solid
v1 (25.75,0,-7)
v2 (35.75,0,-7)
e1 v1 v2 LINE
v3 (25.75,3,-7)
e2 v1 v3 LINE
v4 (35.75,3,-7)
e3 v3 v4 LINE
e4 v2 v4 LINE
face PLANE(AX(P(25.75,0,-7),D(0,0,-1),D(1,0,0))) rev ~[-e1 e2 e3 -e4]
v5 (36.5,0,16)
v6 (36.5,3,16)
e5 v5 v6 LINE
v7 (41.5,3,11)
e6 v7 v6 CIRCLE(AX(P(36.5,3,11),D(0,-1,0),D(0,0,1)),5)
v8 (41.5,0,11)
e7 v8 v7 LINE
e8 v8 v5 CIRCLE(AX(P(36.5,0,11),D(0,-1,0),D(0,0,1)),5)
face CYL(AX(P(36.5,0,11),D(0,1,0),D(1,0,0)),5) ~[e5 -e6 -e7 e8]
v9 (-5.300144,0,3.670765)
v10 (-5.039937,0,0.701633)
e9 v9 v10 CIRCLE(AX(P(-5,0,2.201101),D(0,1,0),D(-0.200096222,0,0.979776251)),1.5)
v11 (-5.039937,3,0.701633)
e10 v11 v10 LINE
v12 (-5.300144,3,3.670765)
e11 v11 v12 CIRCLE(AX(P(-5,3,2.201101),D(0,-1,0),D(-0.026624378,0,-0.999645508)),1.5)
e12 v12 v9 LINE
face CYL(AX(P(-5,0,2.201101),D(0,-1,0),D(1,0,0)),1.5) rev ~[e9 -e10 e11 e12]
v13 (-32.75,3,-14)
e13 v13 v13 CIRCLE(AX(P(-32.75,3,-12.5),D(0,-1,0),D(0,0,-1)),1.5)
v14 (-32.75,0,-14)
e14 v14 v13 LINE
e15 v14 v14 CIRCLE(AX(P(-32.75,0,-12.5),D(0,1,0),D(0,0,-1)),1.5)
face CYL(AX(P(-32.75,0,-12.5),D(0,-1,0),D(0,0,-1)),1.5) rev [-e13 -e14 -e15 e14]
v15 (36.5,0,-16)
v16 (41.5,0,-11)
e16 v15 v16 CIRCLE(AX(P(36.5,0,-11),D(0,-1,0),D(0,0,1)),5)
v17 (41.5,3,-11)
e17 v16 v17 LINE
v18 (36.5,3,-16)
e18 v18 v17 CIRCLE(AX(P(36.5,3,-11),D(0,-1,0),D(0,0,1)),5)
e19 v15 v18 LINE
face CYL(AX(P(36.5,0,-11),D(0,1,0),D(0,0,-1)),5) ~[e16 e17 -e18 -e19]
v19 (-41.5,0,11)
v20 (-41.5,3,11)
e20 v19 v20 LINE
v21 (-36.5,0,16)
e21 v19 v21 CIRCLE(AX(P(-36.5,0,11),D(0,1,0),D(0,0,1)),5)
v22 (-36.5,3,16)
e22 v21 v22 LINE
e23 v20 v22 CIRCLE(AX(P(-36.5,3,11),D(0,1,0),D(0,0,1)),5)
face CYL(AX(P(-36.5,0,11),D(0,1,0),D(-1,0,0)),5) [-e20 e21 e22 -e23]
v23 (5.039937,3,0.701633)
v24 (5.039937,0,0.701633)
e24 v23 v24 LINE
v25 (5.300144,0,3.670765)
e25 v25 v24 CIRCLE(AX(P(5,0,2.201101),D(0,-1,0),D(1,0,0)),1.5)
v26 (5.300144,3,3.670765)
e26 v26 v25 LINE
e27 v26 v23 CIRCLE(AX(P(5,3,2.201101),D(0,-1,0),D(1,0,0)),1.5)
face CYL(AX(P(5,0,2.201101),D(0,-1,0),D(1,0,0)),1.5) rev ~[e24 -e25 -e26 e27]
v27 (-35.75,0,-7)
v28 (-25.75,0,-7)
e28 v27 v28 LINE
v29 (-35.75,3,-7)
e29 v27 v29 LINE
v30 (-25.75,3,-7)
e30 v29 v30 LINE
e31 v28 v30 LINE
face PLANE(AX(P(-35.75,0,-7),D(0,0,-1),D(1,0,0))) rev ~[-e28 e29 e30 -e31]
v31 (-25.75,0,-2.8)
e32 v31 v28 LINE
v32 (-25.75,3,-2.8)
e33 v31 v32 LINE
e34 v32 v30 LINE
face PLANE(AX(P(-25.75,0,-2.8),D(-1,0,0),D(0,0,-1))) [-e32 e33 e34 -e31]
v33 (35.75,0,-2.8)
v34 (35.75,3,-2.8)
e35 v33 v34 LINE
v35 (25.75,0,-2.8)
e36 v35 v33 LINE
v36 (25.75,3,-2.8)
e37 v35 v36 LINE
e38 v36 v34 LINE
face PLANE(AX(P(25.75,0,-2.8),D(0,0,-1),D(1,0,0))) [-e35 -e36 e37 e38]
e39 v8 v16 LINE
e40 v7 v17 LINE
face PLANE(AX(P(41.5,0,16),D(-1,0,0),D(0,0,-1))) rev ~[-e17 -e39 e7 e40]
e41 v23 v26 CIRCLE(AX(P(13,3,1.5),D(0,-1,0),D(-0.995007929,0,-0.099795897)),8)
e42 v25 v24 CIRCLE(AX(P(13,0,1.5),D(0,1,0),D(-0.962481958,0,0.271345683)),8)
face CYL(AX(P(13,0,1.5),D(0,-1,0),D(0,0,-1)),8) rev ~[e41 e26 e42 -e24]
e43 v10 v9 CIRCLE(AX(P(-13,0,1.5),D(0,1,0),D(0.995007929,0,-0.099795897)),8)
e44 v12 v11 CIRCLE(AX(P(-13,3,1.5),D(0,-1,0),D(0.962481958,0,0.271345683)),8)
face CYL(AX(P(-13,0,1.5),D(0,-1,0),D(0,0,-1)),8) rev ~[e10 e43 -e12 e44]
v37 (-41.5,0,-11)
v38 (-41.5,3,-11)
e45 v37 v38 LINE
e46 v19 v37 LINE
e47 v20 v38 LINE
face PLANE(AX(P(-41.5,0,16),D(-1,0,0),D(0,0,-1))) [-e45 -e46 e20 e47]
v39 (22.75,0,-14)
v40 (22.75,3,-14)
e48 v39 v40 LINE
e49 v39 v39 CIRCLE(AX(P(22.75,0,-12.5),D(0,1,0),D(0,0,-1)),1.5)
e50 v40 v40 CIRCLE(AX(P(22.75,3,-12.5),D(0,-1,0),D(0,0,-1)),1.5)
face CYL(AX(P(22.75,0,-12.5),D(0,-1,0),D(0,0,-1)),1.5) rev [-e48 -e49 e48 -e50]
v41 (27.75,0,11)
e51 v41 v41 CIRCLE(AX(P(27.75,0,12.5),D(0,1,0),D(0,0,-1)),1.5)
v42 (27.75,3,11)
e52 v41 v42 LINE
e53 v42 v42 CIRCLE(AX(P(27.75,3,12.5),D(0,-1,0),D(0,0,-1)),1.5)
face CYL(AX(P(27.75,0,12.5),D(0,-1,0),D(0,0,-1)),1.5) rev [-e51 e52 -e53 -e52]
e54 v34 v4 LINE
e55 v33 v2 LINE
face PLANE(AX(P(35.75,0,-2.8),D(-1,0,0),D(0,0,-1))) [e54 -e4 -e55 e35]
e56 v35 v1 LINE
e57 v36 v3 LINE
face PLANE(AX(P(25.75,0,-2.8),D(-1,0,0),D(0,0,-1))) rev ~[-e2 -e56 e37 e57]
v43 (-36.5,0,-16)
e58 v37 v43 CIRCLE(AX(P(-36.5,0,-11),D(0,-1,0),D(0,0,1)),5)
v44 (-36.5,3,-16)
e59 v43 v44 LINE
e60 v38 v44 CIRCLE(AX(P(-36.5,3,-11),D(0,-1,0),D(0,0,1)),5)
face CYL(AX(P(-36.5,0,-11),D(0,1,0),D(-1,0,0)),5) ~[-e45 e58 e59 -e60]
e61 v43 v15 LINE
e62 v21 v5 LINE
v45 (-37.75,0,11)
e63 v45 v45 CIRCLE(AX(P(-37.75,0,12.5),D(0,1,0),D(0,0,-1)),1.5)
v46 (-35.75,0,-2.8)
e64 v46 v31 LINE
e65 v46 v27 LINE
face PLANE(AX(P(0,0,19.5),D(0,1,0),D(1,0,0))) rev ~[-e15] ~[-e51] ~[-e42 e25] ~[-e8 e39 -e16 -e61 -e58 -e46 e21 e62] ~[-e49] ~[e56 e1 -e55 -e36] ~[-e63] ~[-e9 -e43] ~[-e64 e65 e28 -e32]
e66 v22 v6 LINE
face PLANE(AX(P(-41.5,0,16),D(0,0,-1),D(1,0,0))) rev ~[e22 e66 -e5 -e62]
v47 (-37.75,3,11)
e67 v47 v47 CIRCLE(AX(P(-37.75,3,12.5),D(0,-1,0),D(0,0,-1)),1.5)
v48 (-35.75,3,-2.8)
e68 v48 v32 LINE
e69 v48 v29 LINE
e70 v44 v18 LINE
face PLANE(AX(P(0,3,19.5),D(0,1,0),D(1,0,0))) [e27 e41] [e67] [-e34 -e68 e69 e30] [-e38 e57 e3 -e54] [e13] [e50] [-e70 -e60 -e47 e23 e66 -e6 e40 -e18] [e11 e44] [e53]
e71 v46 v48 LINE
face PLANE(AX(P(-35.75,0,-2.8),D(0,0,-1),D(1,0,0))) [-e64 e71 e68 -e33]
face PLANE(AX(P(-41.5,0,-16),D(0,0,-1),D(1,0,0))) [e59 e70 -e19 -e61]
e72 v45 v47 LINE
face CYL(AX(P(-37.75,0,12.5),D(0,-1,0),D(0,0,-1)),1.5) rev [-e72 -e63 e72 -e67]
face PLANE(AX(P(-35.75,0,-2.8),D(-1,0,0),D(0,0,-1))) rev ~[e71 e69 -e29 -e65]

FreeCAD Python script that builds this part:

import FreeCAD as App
import Part
import Sketcher


def edges_at(feature, points):
    """Names of the edges that pass closest to the given points."""
    edges = feature.Shape.Edges
    near = lambda p: min(range(len(edges)), key=lambda i: edges[i].distToShape(Part.Vertex(*p))[0])
    return sorted({f"Edge{near(p) + 1}" for p in points})


def add_polygon(sketch, points):
    """Adds a closed chain of lines whose ends are joined by coincident constraints."""
    first, n = sketch.GeometryCount, len(points)
    for a, b in zip(points, points[1:] + points[:1]):
        sketch.addGeometry(Part.LineSegment(App.Vector(*a, 0), App.Vector(*b, 0)), False)
    for i in range(n):
        sketch.addConstraint(Sketcher.Constraint("Coincident", first + i, 2, first + (i + 1) % n, 1))

doc = App.newDocument("Part")
body = doc.addObject("PartDesign::Body", "Body")

# Sketch on XZ plane
sketch1 = body.newObject("Sketcher::SketchObject", "Sketch")
sketch1.AttachmentSupport = (doc.getObject("XZ_Plane"), [""])
sketch1.MapMode = "FlatFace"
add_polygon(sketch1, [(-48, -18), (-48, 18), (48, 18), (48, -18)])  # lines 0-3
sketch1.addConstraint(Sketcher.Constraint("Vertical", 0))
sketch1.addConstraint(Sketcher.Constraint("Horizontal", 1))
sketch1.addConstraint(Sketcher.Constraint("Vertical", 2))
sketch1.addConstraint(Sketcher.Constraint("Horizontal", 3))
sketch1.addConstraint(Sketcher.Constraint("Symmetric", 0, 2, 2, 2, -1, 1))
sketch1.addConstraint(Sketcher.Constraint("DistanceX", 1, 1, 1, 2, 95.0))
sketch1.addConstraint(Sketcher.Constraint("DistanceY", 0, 1, 0, 2, 35.0))
pad1 = body.newObject("PartDesign::Pad", "Pad")
pad1.Profile = sketch1
pad1.Length = 3
pad1.Reversed = True

# Sketch on XZ plane
sketch2 = body.newObject("Sketcher::SketchObject", "Sketch001")
sketch2.AttachmentSupport = (doc.getObject("XZ_Plane"), [""])
sketch2.MapMode = "FlatFace"
sketch2.addGeometry(Part.Circle(App.Vector(-13, 2, 0), App.Vector(0, 0, 1), 8), False)
sketch2.addConstraint(Sketcher.Constraint("Diameter", 0, 16.0))
sketch2.addConstraint(Sketcher.Constraint("DistanceX", 0, 3, -1, 1, 13.0))
sketch2.addConstraint(Sketcher.Constraint("DistanceY", -1, 1, 0, 3, 1.5))
pocket1 = body.newObject("PartDesign::Pocket", "Pocket")
pocket1.Profile = sketch2
pocket1.Type = "UpToFirst"

# Sketch on XZ plane
sketch3 = body.newObject("Sketcher::SketchObject", "Sketch002")
sketch3.AttachmentSupport = (doc.getObject("XZ_Plane"), [""])
sketch3.MapMode = "FlatFace"
sketch3.addGeometry(Part.Circle(App.Vector(13, 2, 0), App.Vector(0, 0, 1), 8), False)
sketch3.addConstraint(Sketcher.Constraint("Diameter", 0, 16.0))
sketch3.addConstraint(Sketcher.Constraint("DistanceX", -1, 1, 0, 3, 13.0))
sketch3.addConstraint(Sketcher.Constraint("DistanceY", -1, 1, 0, 3, 1.5))
pocket2 = body.newObject("PartDesign::Pocket", "Pocket001")
pocket2.Profile = sketch3
pocket2.Type = "UpToFirst"

# Sketch on XZ plane
sketch4 = body.newObject("Sketcher::SketchObject", "Sketch003")
sketch4.AttachmentSupport = (doc.getObject("XZ_Plane"), [""])
sketch4.MapMode = "FlatFace"
sketch4.addGeometry(Part.Circle(App.Vector(-37.8, 12.5, 0), App.Vector(0, 0, 1), 1.5), False)
sketch4.addConstraint(Sketcher.Constraint("Diameter", 0, 3.0))
sketch4.addConstraint(Sketcher.Constraint("DistanceY", -1, 1, 0, 3, 12.5))
sketch4.addConstraint(Sketcher.Constraint("DistanceX", 0, 3, -1, 1, 37.75))
pocket3 = body.newObject("PartDesign::Pocket", "Pocket002")
pocket3.Profile = sketch4
pocket3.Type = "UpToFirst"

# Sketch on XZ plane
sketch5 = body.newObject("Sketcher::SketchObject", "Sketch004")
sketch5.AttachmentSupport = (doc.getObject("XZ_Plane"), [""])
sketch5.MapMode = "FlatFace"
sketch5.addGeometry(Part.Circle(App.Vector(27.8, 12.5, 0), App.Vector(0, 0, 1), 1.5), False)
sketch5.addConstraint(Sketcher.Constraint("Diameter", 0, 3.0))
sketch5.addConstraint(Sketcher.Constraint("DistanceY", -1, 1, 0, 3, 12.5))
sketch5.addConstraint(Sketcher.Constraint("DistanceX", -1, 1, 0, 3, 27.75))
pocket4 = body.newObject("PartDesign::Pocket", "Pocket003")
pocket4.Profile = sketch5
pocket4.Type = "UpToFirst"

# Sketch on XZ plane
sketch6 = body.newObject("Sketcher::SketchObject", "Sketch005")
sketch6.AttachmentSupport = (doc.getObject("XZ_Plane"), [""])
sketch6.MapMode = "FlatFace"
sketch6.addGeometry(Part.Circle(App.Vector(22.8, -12.5, 0), App.Vector(0, 0, 1), 1.5), False)
sketch6.addConstraint(Sketcher.Constraint("Diameter", 0, 3.0))
sketch6.addConstraint(Sketcher.Constraint("DistanceY", 0, 3, -1, 1, 12.5))
sketch6.addConstraint(Sketcher.Constraint("DistanceX", -1, 1, 0, 3, 22.75))
pocket5 = body.newObject("PartDesign::Pocket", "Pocket004")
pocket5.Profile = sketch6
pocket5.Type = "UpToFirst"

# Sketch on XZ plane
sketch7 = body.newObject("Sketcher::SketchObject", "Sketch006")
sketch7.AttachmentSupport = (doc.getObject("XZ_Plane"), [""])
sketch7.MapMode = "FlatFace"
sketch7.addGeometry(Part.Circle(App.Vector(-32.8, -12.5, 0), App.Vector(0, 0, 1), 1.5), False)
sketch7.addConstraint(Sketcher.Constraint("Diameter", 0, 3.0))
sketch7.addConstraint(Sketcher.Constraint("DistanceY", 0, 3, -1, 1, 12.5))
sketch7.addConstraint(Sketcher.Constraint("DistanceX", 0, 3, -1, 1, 32.75))
pocket6 = body.newObject("PartDesign::Pocket", "Pocket005")
pocket6.Profile = sketch7
pocket6.Type = "UpToFirst"

# Sketch on XZ plane
sketch8 = body.newObject("Sketcher::SketchObject", "Sketch007")
sketch8.AttachmentSupport = (doc.getObject("XZ_Plane"), [""])
sketch8.MapMode = "FlatFace"
add_polygon(sketch8, [(-47.5, 17.5), (-47.5, 21.5), (47.5, 21.5), (47.5, 17.5)])  # lines 0-3
add_polygon(sketch8, [(-47.5, -21.5), (-47.5, -17.5), (47.5, -17.5), (47.5, -21.5)])  # lines 4-7
sketch8.addConstraint(Sketcher.Constraint("Vertical", 0))
sketch8.addConstraint(Sketcher.Constraint("Horizontal", 1))
sketch8.addConstraint(Sketcher.Constraint("Vertical", 2))
sketch8.addConstraint(Sketcher.Constraint("Horizontal", 3))
sketch8.addConstraint(Sketcher.Constraint("Vertical", 4))
sketch8.addConstraint(Sketcher.Constraint("Horizontal", 5))
sketch8.addConstraint(Sketcher.Constraint("Vertical", 6))
sketch8.addConstraint(Sketcher.Constraint("Horizontal", 7))
sketch8.addConstraint(Sketcher.Constraint("Symmetric", 2, 2, 4, 2, -1, 1))
sketch8.addConstraint(Sketcher.Constraint("Symmetric", 0, 2, 6, 2, -1, 1))
sketch8.addConstraint(Sketcher.Constraint("Vertical", 3, 2, 4, 2))
sketch8.addConstraint(Sketcher.Constraint("DistanceX", 1, 1, 1, 2, 95.0))
sketch8.addConstraint(Sketcher.Constraint("DistanceY", 0, 1, 0, 2, 4.0))
sketch8.addConstraint(Sketcher.Constraint("DistanceY", 4, 2, 3, 2, 35.0))
pad2 = body.newObject("PartDesign::Pad", "Pad001")
pad2.Profile = sketch8
pad2.Length = 3
pad2.Reversed = True

# Sketch on XZ plane
sketch9 = body.newObject("Sketcher::SketchObject", "Sketch008")
sketch9.AttachmentSupport = (doc.getObject("XZ_Plane"), [""])
sketch9.MapMode = "FlatFace"
add_polygon(sketch9, [(-35.8, -7), (-35.8, -2.8), (-25.8, -2.8), (-25.8, -7)])  # lines 0-3
sketch9.addConstraint(Sketcher.Constraint("Vertical", 0))
sketch9.addConstraint(Sketcher.Constraint("Horizontal", 1))
sketch9.addConstraint(Sketcher.Constraint("Vertical", 2))
sketch9.addConstraint(Sketcher.Constraint("Horizontal", 3))
sketch9.addConstraint(Sketcher.Constraint("DistanceX", 1, 1, 1, 2, 10.0))
sketch9.addConstraint(Sketcher.Constraint("DistanceY", 0, 1, 0, 2, 4.2))
sketch9.addConstraint(Sketcher.Constraint("DistanceY", 2, 2, -1, 1, 7.0))
sketch9.addConstraint(Sketcher.Constraint("DistanceX", 0, 2, -1, 1, 35.75))
pocket7 = body.newObject("PartDesign::Pocket", "Pocket006")
pocket7.Profile = sketch9
pocket7.Type = "UpToFirst"

# Sketch on XZ plane
sketch10 = body.newObject("Sketcher::SketchObject", "Sketch009")
sketch10.AttachmentSupport = (doc.getObject("XZ_Plane"), [""])
sketch10.MapMode = "FlatFace"
add_polygon(sketch10, [(25.8, -7), (25.8, -2.8), (35.8, -2.8), (35.8, -7)])  # lines 0-3
sketch10.addConstraint(Sketcher.Constraint("Vertical", 0))
sketch10.addConstraint(Sketcher.Constraint("Horizontal", 1))
sketch10.addConstraint(Sketcher.Constraint("Vertical", 2))
sketch10.addConstraint(Sketcher.Constraint("Horizontal", 3))
sketch10.addConstraint(Sketcher.Constraint("DistanceX", 1, 1, 1, 2, 10.0))
sketch10.addConstraint(Sketcher.Constraint("DistanceY", 0, 1, 0, 2, 4.2))
sketch10.addConstraint(Sketcher.Constraint("DistanceY", 2, 2, -1, 1, 7.0))
sketch10.addConstraint(Sketcher.Constraint("DistanceX", -1, 1, 0, 2, 25.75))
pocket8 = body.newObject("PartDesign::Pocket", "Pocket007")
pocket8.Profile = sketch10
pocket8.Type = "UpToFirst"

# Sketch on XZ plane
sketch11 = body.newObject("Sketcher::SketchObject", "Sketch010")
sketch11.AttachmentSupport = (doc.getObject("XZ_Plane"), [""])
sketch11.MapMode = "FlatFace"
sketch11.addGeometry(Part.Circle(App.Vector(-5, 2.2, 0), App.Vector(0, 0, 1), 1.5), False)
sketch11.addConstraint(Sketcher.Constraint("Diameter", 0, 3.0))
sketch11.addConstraint(Sketcher.Constraint("DistanceX", 0, 3, -1, 1, 5.0))
sketch11.addConstraint(Sketcher.Constraint("DistanceY", -1, 1, 0, 3, 2.201101))
pocket9 = body.newObject("PartDesign::Pocket", "Pocket008")
pocket9.Profile = sketch11
pocket9.Type = "UpToFirst"

# Sketch on XZ plane
sketch12 = body.newObject("Sketcher::SketchObject", "Sketch011")
sketch12.AttachmentSupport = (doc.getObject("XZ_Plane"), [""])
sketch12.MapMode = "FlatFace"
sketch12.addGeometry(Part.Circle(App.Vector(5, 2.2, 0), App.Vector(0, 0, 1), 1.5), False)
sketch12.addConstraint(Sketcher.Constraint("Diameter", 0, 3.0))
sketch12.addConstraint(Sketcher.Constraint("DistanceX", -1, 1, 0, 3, 5.0))
sketch12.addConstraint(Sketcher.Constraint("DistanceY", -1, 1, 0, 3, 2.201101))
pocket10 = body.newObject("PartDesign::Pocket", "Pocket009")
pocket10.Profile = sketch12
pocket10.Type = "UpToFirst"

# Sketch on XZ plane
sketch13 = body.newObject("Sketcher::SketchObject", "Sketch012")
sketch13.AttachmentSupport = (doc.getObject("XZ_Plane"), [""])
sketch13.MapMode = "FlatFace"
add_polygon(sketch13, [(-53, -26), (-53, 26), (53, 26), (53, -26)])  # lines 0-3
add_polygon(sketch13, [(42, 16), (-42, 16), (-42, -16), (42, -16)])  # lines 4-7
sketch13.addConstraint(Sketcher.Constraint("Vertical", 0))
sketch13.addConstraint(Sketcher.Constraint("Horizontal", 1))
sketch13.addConstraint(Sketcher.Constraint("Vertical", 2))
sketch13.addConstraint(Sketcher.Constraint("Horizontal", 3))
sketch13.addConstraint(Sketcher.Constraint("Horizontal", 4))
sketch13.addConstraint(Sketcher.Constraint("Vertical", 5))
sketch13.addConstraint(Sketcher.Constraint("Horizontal", 6))
sketch13.addConstraint(Sketcher.Constraint("Vertical", 7))
sketch13.addConstraint(Sketcher.Constraint("Symmetric", 0, 2, 2, 2, -1, 1))
sketch13.addConstraint(Sketcher.Constraint("Symmetric", 4, 2, 6, 2, -1, 1))
sketch13.addConstraint(Sketcher.Constraint("DistanceX", 4, 2, 4, 1, 83.0))
sketch13.addConstraint(Sketcher.Constraint("DistanceY", 5, 2, 5, 1, 32.0))
sketch13.addConstraint(Sketcher.Constraint("DistanceX", 1, 1, 1, 2, 105.539235))
sketch13.addConstraint(Sketcher.Constraint("DistanceY", 0, 1, 0, 2, 51.644684))
pocket11 = body.newObject("PartDesign::Pocket", "Pocket010")
pocket11.Profile = sketch13
pocket11.Type = "UpToFirst"
doc.recompute()

fillet = body.newObject("PartDesign::Fillet", "Fillet")
fillet.Base = (pocket11, edges_at(pocket11, [
    (41.5, 1.5, -16),
    (-41.5, 1.5, -16),
    (-41.5, 1.5, 16),
    (41.5, 1.5, 16),
]))
fillet.Radius = 5

doc.recompute()
